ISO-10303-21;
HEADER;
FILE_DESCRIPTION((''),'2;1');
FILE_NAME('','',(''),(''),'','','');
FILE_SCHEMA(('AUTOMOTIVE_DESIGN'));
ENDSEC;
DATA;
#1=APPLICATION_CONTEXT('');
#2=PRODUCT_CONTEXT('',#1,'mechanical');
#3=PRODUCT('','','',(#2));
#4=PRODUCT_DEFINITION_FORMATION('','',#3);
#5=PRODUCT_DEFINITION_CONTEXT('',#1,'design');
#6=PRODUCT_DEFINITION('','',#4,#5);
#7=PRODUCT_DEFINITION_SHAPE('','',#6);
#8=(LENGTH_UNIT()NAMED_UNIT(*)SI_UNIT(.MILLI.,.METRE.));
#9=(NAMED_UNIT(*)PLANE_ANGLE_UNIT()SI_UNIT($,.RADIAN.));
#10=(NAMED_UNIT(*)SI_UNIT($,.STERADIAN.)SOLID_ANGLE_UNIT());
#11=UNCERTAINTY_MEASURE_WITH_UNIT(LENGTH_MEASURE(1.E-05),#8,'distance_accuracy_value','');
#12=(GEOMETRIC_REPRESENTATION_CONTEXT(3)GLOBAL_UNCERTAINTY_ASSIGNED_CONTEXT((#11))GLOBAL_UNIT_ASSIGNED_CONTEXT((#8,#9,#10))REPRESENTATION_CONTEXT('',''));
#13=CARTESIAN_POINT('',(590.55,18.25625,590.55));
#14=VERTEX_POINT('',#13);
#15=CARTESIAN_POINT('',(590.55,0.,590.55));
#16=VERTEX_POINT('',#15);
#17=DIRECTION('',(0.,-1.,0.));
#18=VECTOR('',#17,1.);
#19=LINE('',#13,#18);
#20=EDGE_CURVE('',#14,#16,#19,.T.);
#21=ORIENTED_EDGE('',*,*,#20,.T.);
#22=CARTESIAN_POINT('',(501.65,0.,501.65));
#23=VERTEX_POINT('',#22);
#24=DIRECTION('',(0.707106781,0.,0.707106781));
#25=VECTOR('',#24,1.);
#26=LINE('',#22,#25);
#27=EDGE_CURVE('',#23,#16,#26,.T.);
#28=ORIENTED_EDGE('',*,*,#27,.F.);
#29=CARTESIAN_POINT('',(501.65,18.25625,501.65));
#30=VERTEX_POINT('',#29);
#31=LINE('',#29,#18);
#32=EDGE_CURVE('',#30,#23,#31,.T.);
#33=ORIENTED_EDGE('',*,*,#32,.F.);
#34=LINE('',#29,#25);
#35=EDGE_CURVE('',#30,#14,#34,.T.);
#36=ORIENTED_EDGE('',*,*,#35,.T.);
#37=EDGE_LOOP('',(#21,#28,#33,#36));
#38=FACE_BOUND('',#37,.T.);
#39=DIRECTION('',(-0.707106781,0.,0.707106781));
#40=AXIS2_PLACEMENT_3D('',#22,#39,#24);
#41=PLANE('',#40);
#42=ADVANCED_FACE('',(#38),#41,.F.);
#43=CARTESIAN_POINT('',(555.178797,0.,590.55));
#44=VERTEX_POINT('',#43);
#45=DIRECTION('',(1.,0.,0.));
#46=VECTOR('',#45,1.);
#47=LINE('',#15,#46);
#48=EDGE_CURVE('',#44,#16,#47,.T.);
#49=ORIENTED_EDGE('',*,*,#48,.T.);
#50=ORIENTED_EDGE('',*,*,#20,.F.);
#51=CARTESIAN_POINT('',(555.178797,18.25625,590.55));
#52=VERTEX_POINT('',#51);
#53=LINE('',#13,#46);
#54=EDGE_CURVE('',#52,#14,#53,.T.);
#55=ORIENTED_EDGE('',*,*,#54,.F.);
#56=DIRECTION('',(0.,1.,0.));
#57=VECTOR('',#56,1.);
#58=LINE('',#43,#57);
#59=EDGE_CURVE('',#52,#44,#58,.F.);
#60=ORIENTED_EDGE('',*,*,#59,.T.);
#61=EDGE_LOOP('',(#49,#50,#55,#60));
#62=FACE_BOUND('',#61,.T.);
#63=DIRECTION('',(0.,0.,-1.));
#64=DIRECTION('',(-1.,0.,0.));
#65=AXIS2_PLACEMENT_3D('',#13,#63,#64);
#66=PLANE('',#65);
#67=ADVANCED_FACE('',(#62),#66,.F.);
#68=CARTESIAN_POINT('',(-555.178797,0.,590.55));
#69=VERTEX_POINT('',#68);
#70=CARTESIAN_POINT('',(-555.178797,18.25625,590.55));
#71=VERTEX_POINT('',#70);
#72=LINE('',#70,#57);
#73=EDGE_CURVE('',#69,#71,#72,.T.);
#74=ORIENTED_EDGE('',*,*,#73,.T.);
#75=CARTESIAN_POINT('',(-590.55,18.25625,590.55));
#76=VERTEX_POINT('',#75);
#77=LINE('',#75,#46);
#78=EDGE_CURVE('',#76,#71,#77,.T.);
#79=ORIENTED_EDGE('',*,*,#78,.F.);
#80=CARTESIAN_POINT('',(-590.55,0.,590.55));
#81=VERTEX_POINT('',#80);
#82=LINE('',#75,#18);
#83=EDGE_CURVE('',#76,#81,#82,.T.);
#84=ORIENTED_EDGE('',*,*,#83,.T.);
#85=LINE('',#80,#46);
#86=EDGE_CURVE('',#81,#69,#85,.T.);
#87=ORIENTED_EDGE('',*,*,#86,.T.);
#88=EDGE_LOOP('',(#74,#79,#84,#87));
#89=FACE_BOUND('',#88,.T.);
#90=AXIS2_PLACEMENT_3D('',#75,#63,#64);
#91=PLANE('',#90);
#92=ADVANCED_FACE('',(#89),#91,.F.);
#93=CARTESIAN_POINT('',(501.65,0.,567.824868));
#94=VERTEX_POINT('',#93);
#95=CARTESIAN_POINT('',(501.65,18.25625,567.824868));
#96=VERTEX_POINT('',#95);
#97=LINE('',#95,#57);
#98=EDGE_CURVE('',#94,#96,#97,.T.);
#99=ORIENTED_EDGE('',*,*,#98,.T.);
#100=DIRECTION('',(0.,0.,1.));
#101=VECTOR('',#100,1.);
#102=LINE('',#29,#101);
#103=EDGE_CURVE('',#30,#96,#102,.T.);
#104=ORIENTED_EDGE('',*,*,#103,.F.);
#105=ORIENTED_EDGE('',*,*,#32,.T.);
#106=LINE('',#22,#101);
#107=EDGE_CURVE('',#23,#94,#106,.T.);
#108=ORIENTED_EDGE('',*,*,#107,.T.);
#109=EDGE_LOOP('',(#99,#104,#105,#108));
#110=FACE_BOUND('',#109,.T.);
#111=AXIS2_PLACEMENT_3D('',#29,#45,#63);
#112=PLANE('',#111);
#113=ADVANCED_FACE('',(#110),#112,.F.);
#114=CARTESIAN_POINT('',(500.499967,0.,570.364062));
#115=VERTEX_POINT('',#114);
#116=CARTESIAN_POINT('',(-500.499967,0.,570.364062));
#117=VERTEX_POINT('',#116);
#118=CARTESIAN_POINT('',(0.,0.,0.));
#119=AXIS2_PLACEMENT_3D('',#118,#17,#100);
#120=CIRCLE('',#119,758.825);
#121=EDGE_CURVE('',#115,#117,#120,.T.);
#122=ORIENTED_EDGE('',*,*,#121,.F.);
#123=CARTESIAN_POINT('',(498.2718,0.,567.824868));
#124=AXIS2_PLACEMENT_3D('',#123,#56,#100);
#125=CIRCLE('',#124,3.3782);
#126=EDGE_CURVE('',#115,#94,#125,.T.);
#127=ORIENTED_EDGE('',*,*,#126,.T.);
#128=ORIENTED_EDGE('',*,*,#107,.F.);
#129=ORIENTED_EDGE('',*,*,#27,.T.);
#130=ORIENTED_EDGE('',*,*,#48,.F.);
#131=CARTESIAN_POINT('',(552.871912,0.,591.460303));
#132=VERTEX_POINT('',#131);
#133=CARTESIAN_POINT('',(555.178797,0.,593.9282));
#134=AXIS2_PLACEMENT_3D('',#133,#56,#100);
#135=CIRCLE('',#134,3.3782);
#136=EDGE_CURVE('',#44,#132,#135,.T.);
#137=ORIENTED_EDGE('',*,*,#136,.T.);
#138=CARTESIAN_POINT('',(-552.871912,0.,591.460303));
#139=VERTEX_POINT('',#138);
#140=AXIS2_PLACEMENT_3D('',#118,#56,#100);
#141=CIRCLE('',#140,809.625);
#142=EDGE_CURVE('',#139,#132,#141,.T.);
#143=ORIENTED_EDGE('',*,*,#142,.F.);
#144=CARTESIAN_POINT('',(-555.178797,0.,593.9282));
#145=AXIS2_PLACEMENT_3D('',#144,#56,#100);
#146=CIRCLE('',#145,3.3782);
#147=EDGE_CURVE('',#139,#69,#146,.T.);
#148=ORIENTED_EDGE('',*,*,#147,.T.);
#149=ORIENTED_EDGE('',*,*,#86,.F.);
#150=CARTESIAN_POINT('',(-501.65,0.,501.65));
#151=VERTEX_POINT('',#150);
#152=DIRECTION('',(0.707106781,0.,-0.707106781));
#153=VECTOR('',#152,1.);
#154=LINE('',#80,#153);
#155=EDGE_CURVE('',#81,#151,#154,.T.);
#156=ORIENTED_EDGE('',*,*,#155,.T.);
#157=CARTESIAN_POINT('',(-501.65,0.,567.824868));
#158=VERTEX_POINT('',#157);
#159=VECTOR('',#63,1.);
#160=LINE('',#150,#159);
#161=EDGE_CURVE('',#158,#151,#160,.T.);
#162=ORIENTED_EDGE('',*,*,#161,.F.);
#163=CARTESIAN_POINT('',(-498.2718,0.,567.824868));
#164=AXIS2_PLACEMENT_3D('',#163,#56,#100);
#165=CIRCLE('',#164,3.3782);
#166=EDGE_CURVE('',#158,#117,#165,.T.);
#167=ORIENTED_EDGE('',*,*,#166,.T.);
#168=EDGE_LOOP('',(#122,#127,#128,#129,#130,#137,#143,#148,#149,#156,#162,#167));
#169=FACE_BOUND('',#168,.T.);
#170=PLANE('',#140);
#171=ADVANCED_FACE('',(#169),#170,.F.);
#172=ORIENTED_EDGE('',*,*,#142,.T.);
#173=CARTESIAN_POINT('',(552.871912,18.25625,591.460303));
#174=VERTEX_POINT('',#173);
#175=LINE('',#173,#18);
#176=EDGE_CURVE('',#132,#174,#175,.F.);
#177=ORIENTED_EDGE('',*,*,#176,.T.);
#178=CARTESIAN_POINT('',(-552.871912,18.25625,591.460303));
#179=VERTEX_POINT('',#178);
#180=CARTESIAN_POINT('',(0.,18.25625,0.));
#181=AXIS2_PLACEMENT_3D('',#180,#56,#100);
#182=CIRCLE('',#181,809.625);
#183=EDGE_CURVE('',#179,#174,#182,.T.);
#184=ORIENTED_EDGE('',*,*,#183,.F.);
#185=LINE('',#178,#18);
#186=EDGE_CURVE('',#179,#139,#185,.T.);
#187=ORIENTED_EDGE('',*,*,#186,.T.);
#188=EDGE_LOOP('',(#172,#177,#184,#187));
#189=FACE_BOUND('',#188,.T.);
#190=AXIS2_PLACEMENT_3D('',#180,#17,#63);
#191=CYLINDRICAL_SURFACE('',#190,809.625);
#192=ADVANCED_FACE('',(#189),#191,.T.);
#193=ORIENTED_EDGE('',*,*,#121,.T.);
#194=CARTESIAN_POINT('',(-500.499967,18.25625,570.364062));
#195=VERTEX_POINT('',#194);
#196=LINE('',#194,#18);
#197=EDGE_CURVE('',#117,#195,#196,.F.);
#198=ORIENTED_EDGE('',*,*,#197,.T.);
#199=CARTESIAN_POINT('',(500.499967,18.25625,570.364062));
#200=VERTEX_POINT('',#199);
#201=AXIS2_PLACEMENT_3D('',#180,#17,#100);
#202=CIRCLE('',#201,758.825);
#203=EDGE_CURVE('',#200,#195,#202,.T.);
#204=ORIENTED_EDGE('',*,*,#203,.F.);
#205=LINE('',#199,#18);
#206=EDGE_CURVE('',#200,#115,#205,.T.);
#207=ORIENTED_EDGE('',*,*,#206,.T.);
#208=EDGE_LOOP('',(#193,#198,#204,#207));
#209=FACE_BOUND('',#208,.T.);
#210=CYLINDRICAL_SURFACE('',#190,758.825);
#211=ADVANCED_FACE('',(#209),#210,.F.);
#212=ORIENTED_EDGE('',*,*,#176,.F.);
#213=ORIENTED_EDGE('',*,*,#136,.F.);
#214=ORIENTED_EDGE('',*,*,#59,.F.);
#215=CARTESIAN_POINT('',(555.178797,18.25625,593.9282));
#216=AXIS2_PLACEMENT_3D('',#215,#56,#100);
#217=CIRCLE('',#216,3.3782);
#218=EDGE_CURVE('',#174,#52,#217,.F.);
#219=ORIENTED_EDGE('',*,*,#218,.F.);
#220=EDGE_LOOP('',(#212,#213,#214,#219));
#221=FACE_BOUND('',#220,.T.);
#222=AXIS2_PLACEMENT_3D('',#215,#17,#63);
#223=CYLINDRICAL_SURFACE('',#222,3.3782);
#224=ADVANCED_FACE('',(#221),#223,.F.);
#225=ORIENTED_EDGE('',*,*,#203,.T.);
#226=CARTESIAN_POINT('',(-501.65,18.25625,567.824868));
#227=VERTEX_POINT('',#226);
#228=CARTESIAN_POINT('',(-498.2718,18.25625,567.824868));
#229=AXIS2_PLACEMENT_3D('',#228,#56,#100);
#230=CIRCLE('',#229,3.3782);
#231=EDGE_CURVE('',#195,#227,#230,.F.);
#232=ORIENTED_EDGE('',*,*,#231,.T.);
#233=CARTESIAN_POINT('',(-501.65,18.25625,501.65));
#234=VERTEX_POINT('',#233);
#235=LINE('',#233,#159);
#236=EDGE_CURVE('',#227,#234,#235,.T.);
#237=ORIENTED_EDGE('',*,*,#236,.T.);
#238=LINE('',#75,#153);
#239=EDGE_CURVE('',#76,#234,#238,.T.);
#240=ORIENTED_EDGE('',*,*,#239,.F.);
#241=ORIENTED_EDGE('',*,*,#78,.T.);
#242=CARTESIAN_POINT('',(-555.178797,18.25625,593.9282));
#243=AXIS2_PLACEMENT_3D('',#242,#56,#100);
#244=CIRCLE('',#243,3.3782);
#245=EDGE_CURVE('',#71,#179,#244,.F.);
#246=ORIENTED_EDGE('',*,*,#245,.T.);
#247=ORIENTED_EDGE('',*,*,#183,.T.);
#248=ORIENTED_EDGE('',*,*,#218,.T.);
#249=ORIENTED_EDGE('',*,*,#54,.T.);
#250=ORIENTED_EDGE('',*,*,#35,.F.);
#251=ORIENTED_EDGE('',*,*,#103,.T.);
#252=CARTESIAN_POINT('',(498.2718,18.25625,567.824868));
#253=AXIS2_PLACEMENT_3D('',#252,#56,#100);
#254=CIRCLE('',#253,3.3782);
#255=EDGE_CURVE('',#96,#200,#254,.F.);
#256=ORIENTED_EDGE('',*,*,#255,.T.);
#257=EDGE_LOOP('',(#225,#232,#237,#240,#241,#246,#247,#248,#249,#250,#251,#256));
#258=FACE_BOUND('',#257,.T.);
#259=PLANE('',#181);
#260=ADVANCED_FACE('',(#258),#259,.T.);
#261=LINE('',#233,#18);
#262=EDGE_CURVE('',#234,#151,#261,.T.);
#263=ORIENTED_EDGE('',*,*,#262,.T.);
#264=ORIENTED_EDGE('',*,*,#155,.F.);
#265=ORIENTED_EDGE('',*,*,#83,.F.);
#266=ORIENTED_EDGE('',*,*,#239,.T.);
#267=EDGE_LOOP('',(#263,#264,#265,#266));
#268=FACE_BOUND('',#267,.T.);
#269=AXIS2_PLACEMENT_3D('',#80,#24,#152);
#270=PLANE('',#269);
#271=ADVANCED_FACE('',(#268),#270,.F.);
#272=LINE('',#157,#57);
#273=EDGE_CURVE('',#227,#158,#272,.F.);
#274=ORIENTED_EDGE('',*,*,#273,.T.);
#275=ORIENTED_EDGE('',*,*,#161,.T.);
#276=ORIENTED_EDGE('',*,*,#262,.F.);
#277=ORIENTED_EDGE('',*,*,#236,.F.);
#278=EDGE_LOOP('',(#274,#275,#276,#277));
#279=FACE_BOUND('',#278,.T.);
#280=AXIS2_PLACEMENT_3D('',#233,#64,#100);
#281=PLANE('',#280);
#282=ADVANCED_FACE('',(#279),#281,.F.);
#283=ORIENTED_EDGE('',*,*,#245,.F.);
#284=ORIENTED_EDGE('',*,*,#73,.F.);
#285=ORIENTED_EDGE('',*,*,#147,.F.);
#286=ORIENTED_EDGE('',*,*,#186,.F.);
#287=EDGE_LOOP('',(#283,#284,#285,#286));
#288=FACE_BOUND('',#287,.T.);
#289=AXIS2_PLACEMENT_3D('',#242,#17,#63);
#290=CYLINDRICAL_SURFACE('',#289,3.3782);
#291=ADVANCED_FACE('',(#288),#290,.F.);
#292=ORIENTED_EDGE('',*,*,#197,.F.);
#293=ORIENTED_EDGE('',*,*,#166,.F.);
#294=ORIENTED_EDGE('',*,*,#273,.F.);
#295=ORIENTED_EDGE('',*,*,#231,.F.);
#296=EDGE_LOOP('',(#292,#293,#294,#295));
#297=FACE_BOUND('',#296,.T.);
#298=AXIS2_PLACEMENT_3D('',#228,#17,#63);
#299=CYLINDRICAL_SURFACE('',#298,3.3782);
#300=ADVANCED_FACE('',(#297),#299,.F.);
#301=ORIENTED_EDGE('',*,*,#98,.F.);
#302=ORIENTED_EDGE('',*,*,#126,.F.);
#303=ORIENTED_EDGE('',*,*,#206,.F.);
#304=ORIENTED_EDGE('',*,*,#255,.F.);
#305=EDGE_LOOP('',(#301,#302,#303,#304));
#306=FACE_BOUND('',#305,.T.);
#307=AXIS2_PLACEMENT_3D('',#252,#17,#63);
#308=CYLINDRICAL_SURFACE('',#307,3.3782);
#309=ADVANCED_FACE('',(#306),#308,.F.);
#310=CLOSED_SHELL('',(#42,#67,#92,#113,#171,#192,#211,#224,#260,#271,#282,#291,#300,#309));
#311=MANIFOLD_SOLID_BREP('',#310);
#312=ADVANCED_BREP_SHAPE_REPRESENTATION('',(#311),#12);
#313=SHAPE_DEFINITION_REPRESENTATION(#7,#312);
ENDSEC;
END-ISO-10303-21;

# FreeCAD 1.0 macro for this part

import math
import FreeCAD as App
import Part
import Sketcher
Q = App.Units.Quantity


def edges_at(feature, points):
    """Names of the edges that pass closest to the given points."""
    edges = feature.Shape.Edges
    near = lambda p: min(range(len(edges)), key=lambda i: edges[i].distToShape(Part.Vertex(*p))[0])
    return sorted({f"Edge{near(p) + 1}" for p in points})

doc = App.newDocument("Part")
body = doc.addObject("PartDesign::Body", "Body")

# Sketch on XZ plane
sketch1 = body.newObject("Sketcher::SketchObject", "Sketch")
sketch1.AttachmentSupport = (doc.getObject("XZ_Plane"), [""])
sketch1.MapMode = "FlatFace"
sketch1.addGeometry(Part.LineSegment(App.Vector(-502, 502, 0), App.Vector(-591, 591, 0)), False)
sketch1.addGeometry(Part.LineSegment(App.Vector(-591, 591, 0), App.Vector(-554, 591, 0)), False)
sketch1.addGeometry(Part.ArcOfCircle(Part.Circle(App.Vector(0, 0, 0), App.Vector(0, 0, 1), 810), math.radians(47), math.radians(133)), False)
sketch1.addGeometry(Part.LineSegment(App.Vector(554, 591, 0), App.Vector(591, 591, 0)), False)
sketch1.addGeometry(Part.LineSegment(App.Vector(591, 591, 0), App.Vector(502, 502, 0)), False)
sketch1.addGeometry(Part.LineSegment(App.Vector(502, 502, 0), App.Vector(502, 569, 0)), False)
sketch1.addGeometry(Part.ArcOfCircle(Part.Circle(App.Vector(0, 0, 0), App.Vector(0, 0, 1), 759), math.radians(49), math.radians(131)), False)
sketch1.addGeometry(Part.LineSegment(App.Vector(-502, 569, 0), App.Vector(-502, 502, 0)), False)
sketch1.addConstraint(Sketcher.Constraint("Coincident", 0, 2, 1, 1))
sketch1.addConstraint(Sketcher.Constraint("Coincident", 1, 2, 2, 2))
sketch1.addConstraint(Sketcher.Constraint("Coincident", 2, 1, 3, 1))
sketch1.addConstraint(Sketcher.Constraint("Coincident", 3, 2, 4, 1))
sketch1.addConstraint(Sketcher.Constraint("Coincident", 4, 2, 5, 1))
sketch1.addConstraint(Sketcher.Constraint("Coincident", 5, 2, 6, 1))
sketch1.addConstraint(Sketcher.Constraint("Coincident", 6, 2, 7, 1))
sketch1.addConstraint(Sketcher.Constraint("Coincident", 7, 2, 0, 1))
sketch1.addConstraint(Sketcher.Constraint("Horizontal", 1))
sketch1.addConstraint(Sketcher.Constraint("Horizontal", 3))
sketch1.addConstraint(Sketcher.Constraint("Vertical", 5))
sketch1.addConstraint(Sketcher.Constraint("Vertical", 7))
sketch1.addConstraint(Sketcher.Constraint("Coincident", 2, 3, -1, 1))
sketch1.addConstraint(Sketcher.Constraint("Coincident", 6, 3, -1, 1))
sketch1.addConstraint(Sketcher.Constraint("Symmetric", 0, 2, 3, 2, -2))
sketch1.addConstraint(Sketcher.Constraint("Symmetric", 4, 2, 7, 2, -2))
sketch1.addConstraint(Sketcher.Constraint("Perpendicular", 0, 4))
sketch1.addConstraint(Sketcher.Constraint("Radius", 2, Q("31.875 in")))
sketch1.addConstraint(Sketcher.Constraint("Radius", 6, Q("29.875 in")))
sketch1.addConstraint(Sketcher.Constraint("DistanceX", 0, 2, 3, 2, Q("46.5 in")))
sketch1.addConstraint(Sketcher.Constraint("DistanceX", 4, 2, 3, 2, Q("3.5 in")))
sketch1.addConstraint(Sketcher.Constraint("DistanceY", -1, 1, 0, 2, Q("23.25 in")))
pad1 = body.newObject("PartDesign::Pad", "Pad")
pad1.Profile = sketch1
pad1.Length = Q("0.71875 in")
pad1.Reversed = True

# Sketch on XZ plane
sketch2 = body.newObject("Sketcher::SketchObject", "Sketch001")
sketch2.AttachmentSupport = (doc.getObject("XZ_Plane"), [""])
sketch2.MapMode = "FlatFace"
sketch2.AttachmentOffset = App.Placement(App.Vector(0, 0, -0.71875 * 25.4), App.Rotation())
sketch2.addGeometry(Part.LineSegment(App.Vector(-591, 502, 0), App.Vector(-591, 591, 0)), False)
sketch2.addGeometry(Part.LineSegment(App.Vector(-591, 591, 0), App.Vector(-502, 591, 0)), False)
sketch2.addGeometry(Part.LineSegment(App.Vector(-502, 591, 0), App.Vector(-502, 502, 0)), False)
sketch2.addGeometry(Part.LineSegment(App.Vector(-502, 502, 0), App.Vector(-591, 502, 0)), False)
sketch2.addGeometry(Part.LineSegment(App.Vector(502, 502, 0), App.Vector(502, 591, 0)), False)
sketch2.addGeometry(Part.LineSegment(App.Vector(502, 591, 0), App.Vector(591, 591, 0)), False)
sketch2.addGeometry(Part.LineSegment(App.Vector(591, 591, 0), App.Vector(591, 502, 0)), False)
sketch2.addGeometry(Part.LineSegment(App.Vector(591, 502, 0), App.Vector(502, 502, 0)), False)
sketch2.addConstraint(Sketcher.Constraint("Coincident", 0, 2, 1, 1))
sketch2.addConstraint(Sketcher.Constraint("Coincident", 1, 2, 2, 1))
sketch2.addConstraint(Sketcher.Constraint("Coincident", 2, 2, 3, 1))
sketch2.addConstraint(Sketcher.Constraint("Coincident", 3, 2, 0, 1))
sketch2.addConstraint(Sketcher.Constraint("Coincident", 4, 2, 5, 1))
sketch2.addConstraint(Sketcher.Constraint("Coincident", 5, 2, 6, 1))
sketch2.addConstraint(Sketcher.Constraint("Coincident", 6, 2, 7, 1))
sketch2.addConstraint(Sketcher.Constraint("Coincident", 7, 2, 4, 1))
sketch2.addConstraint(Sketcher.Constraint("Vertical", 0))
sketch2.addConstraint(Sketcher.Constraint("Horizontal", 1))
sketch2.addConstraint(Sketcher.Constraint("Vertical", 2))
sketch2.addConstraint(Sketcher.Constraint("Horizontal", 3))
sketch2.addConstraint(Sketcher.Constraint("Vertical", 4))
sketch2.addConstraint(Sketcher.Constraint("Horizontal", 5))
sketch2.addConstraint(Sketcher.Constraint("Vertical", 6))
sketch2.addConstraint(Sketcher.Constraint("Horizontal", 7))
sketch2.addConstraint(Sketcher.Constraint("Symmetric", 1, 2, 4, 2, -2))
sketch2.addConstraint(Sketcher.Constraint("Symmetric", 3, 2, 6, 2, -2))
sketch2.addConstraint(Sketcher.Constraint("Equal", 7, 0))
sketch2.addConstraint(Sketcher.Constraint("DistanceX", 1, 1, 1, 2, Q("3.5 in")))
sketch2.addConstraint(Sketcher.Constraint("DistanceX", 0, 2, 4, 2, Q("43 in")))
sketch2.addConstraint(Sketcher.Constraint("DistanceY", -1, 1, 0, 2, Q("23.25 in")))
pad2 = body.newObject("PartDesign::Pad", "Pad001")
pad2.Profile = sketch2
pad2.Length = Q("0.71875 in")

# Sketch on XZ plane
sketch3 = body.newObject("Sketcher::SketchObject", "Sketch002")
sketch3.AttachmentSupport = (doc.getObject("XZ_Plane"), [""])
sketch3.MapMode = "FlatFace"
sketch3.AttachmentOffset = App.Placement(App.Vector(0, 0, -0.71875 * 25.4), App.Rotation())
sketch3.addGeometry(Part.LineSegment(App.Vector(-591, 591, 0), App.Vector(-502, 502, 0)), False)
sketch3.addGeometry(Part.LineSegment(App.Vector(-502, 502, 0), App.Vector(-591, 502, 0)), False)
sketch3.addGeometry(Part.LineSegment(App.Vector(-591, 502, 0), App.Vector(-591, 591, 0)), False)
sketch3.addGeometry(Part.LineSegment(App.Vector(502, 502, 0), App.Vector(591, 591, 0)), False)
sketch3.addGeometry(Part.LineSegment(App.Vector(591, 591, 0), App.Vector(591, 502, 0)), False)
sketch3.addGeometry(Part.LineSegment(App.Vector(591, 502, 0), App.Vector(502, 502, 0)), False)
sketch3.addConstraint(Sketcher.Constraint("Coincident", 0, 2, 1, 1))
sketch3.addConstraint(Sketcher.Constraint("Coincident", 1, 2, 2, 1))
sketch3.addConstraint(Sketcher.Constraint("Coincident", 2, 2, 0, 1))
sketch3.addConstraint(Sketcher.Constraint("Coincident", 3, 2, 4, 1))
sketch3.addConstraint(Sketcher.Constraint("Coincident", 4, 2, 5, 1))
sketch3.addConstraint(Sketcher.Constraint("Coincident", 5, 2, 3, 1))
sketch3.addConstraint(Sketcher.Constraint("Horizontal", 1))
sketch3.addConstraint(Sketcher.Constraint("Vertical", 2))
sketch3.addConstraint(Sketcher.Constraint("Vertical", 4))
sketch3.addConstraint(Sketcher.Constraint("Horizontal", 5))
sketch3.addConstraint(Sketcher.Constraint("Symmetric", 2, 2, 3, 2, -2))
sketch3.addConstraint(Sketcher.Constraint("Symmetric", 0, 2, 5, 2, -2))
sketch3.addConstraint(Sketcher.Constraint("Perpendicular", 0, 3))
sketch3.addConstraint(Sketcher.Constraint("DistanceX", 1, 2, 1, 1, Q("3.5 in")))
sketch3.addConstraint(Sketcher.Constraint("DistanceX", 0, 2, 3, 2, Q("43 in")))
sketch3.addConstraint(Sketcher.Constraint("DistanceY", -1, 1, 0, 2, Q("19.75 in")))
pocket1 = body.newObject("PartDesign::Pocket", "Pocket")
pocket1.Profile = sketch3
pocket1.Type = "ThroughAll"
pocket1.Reversed = True
doc.recompute()

fillet = body.newObject("PartDesign::Fillet", "Fillet")
fillet.Base = (pocket1, edges_at(pocket1, [
    (-501.65, 9.128, 569.353),
    (501.65, 9.128, 569.353),
    (553.844, 9.128, 590.55),
    (-553.844, 9.128, 590.55),
]))
fillet.Radius = Q("0.133 in")

doc.recompute()
